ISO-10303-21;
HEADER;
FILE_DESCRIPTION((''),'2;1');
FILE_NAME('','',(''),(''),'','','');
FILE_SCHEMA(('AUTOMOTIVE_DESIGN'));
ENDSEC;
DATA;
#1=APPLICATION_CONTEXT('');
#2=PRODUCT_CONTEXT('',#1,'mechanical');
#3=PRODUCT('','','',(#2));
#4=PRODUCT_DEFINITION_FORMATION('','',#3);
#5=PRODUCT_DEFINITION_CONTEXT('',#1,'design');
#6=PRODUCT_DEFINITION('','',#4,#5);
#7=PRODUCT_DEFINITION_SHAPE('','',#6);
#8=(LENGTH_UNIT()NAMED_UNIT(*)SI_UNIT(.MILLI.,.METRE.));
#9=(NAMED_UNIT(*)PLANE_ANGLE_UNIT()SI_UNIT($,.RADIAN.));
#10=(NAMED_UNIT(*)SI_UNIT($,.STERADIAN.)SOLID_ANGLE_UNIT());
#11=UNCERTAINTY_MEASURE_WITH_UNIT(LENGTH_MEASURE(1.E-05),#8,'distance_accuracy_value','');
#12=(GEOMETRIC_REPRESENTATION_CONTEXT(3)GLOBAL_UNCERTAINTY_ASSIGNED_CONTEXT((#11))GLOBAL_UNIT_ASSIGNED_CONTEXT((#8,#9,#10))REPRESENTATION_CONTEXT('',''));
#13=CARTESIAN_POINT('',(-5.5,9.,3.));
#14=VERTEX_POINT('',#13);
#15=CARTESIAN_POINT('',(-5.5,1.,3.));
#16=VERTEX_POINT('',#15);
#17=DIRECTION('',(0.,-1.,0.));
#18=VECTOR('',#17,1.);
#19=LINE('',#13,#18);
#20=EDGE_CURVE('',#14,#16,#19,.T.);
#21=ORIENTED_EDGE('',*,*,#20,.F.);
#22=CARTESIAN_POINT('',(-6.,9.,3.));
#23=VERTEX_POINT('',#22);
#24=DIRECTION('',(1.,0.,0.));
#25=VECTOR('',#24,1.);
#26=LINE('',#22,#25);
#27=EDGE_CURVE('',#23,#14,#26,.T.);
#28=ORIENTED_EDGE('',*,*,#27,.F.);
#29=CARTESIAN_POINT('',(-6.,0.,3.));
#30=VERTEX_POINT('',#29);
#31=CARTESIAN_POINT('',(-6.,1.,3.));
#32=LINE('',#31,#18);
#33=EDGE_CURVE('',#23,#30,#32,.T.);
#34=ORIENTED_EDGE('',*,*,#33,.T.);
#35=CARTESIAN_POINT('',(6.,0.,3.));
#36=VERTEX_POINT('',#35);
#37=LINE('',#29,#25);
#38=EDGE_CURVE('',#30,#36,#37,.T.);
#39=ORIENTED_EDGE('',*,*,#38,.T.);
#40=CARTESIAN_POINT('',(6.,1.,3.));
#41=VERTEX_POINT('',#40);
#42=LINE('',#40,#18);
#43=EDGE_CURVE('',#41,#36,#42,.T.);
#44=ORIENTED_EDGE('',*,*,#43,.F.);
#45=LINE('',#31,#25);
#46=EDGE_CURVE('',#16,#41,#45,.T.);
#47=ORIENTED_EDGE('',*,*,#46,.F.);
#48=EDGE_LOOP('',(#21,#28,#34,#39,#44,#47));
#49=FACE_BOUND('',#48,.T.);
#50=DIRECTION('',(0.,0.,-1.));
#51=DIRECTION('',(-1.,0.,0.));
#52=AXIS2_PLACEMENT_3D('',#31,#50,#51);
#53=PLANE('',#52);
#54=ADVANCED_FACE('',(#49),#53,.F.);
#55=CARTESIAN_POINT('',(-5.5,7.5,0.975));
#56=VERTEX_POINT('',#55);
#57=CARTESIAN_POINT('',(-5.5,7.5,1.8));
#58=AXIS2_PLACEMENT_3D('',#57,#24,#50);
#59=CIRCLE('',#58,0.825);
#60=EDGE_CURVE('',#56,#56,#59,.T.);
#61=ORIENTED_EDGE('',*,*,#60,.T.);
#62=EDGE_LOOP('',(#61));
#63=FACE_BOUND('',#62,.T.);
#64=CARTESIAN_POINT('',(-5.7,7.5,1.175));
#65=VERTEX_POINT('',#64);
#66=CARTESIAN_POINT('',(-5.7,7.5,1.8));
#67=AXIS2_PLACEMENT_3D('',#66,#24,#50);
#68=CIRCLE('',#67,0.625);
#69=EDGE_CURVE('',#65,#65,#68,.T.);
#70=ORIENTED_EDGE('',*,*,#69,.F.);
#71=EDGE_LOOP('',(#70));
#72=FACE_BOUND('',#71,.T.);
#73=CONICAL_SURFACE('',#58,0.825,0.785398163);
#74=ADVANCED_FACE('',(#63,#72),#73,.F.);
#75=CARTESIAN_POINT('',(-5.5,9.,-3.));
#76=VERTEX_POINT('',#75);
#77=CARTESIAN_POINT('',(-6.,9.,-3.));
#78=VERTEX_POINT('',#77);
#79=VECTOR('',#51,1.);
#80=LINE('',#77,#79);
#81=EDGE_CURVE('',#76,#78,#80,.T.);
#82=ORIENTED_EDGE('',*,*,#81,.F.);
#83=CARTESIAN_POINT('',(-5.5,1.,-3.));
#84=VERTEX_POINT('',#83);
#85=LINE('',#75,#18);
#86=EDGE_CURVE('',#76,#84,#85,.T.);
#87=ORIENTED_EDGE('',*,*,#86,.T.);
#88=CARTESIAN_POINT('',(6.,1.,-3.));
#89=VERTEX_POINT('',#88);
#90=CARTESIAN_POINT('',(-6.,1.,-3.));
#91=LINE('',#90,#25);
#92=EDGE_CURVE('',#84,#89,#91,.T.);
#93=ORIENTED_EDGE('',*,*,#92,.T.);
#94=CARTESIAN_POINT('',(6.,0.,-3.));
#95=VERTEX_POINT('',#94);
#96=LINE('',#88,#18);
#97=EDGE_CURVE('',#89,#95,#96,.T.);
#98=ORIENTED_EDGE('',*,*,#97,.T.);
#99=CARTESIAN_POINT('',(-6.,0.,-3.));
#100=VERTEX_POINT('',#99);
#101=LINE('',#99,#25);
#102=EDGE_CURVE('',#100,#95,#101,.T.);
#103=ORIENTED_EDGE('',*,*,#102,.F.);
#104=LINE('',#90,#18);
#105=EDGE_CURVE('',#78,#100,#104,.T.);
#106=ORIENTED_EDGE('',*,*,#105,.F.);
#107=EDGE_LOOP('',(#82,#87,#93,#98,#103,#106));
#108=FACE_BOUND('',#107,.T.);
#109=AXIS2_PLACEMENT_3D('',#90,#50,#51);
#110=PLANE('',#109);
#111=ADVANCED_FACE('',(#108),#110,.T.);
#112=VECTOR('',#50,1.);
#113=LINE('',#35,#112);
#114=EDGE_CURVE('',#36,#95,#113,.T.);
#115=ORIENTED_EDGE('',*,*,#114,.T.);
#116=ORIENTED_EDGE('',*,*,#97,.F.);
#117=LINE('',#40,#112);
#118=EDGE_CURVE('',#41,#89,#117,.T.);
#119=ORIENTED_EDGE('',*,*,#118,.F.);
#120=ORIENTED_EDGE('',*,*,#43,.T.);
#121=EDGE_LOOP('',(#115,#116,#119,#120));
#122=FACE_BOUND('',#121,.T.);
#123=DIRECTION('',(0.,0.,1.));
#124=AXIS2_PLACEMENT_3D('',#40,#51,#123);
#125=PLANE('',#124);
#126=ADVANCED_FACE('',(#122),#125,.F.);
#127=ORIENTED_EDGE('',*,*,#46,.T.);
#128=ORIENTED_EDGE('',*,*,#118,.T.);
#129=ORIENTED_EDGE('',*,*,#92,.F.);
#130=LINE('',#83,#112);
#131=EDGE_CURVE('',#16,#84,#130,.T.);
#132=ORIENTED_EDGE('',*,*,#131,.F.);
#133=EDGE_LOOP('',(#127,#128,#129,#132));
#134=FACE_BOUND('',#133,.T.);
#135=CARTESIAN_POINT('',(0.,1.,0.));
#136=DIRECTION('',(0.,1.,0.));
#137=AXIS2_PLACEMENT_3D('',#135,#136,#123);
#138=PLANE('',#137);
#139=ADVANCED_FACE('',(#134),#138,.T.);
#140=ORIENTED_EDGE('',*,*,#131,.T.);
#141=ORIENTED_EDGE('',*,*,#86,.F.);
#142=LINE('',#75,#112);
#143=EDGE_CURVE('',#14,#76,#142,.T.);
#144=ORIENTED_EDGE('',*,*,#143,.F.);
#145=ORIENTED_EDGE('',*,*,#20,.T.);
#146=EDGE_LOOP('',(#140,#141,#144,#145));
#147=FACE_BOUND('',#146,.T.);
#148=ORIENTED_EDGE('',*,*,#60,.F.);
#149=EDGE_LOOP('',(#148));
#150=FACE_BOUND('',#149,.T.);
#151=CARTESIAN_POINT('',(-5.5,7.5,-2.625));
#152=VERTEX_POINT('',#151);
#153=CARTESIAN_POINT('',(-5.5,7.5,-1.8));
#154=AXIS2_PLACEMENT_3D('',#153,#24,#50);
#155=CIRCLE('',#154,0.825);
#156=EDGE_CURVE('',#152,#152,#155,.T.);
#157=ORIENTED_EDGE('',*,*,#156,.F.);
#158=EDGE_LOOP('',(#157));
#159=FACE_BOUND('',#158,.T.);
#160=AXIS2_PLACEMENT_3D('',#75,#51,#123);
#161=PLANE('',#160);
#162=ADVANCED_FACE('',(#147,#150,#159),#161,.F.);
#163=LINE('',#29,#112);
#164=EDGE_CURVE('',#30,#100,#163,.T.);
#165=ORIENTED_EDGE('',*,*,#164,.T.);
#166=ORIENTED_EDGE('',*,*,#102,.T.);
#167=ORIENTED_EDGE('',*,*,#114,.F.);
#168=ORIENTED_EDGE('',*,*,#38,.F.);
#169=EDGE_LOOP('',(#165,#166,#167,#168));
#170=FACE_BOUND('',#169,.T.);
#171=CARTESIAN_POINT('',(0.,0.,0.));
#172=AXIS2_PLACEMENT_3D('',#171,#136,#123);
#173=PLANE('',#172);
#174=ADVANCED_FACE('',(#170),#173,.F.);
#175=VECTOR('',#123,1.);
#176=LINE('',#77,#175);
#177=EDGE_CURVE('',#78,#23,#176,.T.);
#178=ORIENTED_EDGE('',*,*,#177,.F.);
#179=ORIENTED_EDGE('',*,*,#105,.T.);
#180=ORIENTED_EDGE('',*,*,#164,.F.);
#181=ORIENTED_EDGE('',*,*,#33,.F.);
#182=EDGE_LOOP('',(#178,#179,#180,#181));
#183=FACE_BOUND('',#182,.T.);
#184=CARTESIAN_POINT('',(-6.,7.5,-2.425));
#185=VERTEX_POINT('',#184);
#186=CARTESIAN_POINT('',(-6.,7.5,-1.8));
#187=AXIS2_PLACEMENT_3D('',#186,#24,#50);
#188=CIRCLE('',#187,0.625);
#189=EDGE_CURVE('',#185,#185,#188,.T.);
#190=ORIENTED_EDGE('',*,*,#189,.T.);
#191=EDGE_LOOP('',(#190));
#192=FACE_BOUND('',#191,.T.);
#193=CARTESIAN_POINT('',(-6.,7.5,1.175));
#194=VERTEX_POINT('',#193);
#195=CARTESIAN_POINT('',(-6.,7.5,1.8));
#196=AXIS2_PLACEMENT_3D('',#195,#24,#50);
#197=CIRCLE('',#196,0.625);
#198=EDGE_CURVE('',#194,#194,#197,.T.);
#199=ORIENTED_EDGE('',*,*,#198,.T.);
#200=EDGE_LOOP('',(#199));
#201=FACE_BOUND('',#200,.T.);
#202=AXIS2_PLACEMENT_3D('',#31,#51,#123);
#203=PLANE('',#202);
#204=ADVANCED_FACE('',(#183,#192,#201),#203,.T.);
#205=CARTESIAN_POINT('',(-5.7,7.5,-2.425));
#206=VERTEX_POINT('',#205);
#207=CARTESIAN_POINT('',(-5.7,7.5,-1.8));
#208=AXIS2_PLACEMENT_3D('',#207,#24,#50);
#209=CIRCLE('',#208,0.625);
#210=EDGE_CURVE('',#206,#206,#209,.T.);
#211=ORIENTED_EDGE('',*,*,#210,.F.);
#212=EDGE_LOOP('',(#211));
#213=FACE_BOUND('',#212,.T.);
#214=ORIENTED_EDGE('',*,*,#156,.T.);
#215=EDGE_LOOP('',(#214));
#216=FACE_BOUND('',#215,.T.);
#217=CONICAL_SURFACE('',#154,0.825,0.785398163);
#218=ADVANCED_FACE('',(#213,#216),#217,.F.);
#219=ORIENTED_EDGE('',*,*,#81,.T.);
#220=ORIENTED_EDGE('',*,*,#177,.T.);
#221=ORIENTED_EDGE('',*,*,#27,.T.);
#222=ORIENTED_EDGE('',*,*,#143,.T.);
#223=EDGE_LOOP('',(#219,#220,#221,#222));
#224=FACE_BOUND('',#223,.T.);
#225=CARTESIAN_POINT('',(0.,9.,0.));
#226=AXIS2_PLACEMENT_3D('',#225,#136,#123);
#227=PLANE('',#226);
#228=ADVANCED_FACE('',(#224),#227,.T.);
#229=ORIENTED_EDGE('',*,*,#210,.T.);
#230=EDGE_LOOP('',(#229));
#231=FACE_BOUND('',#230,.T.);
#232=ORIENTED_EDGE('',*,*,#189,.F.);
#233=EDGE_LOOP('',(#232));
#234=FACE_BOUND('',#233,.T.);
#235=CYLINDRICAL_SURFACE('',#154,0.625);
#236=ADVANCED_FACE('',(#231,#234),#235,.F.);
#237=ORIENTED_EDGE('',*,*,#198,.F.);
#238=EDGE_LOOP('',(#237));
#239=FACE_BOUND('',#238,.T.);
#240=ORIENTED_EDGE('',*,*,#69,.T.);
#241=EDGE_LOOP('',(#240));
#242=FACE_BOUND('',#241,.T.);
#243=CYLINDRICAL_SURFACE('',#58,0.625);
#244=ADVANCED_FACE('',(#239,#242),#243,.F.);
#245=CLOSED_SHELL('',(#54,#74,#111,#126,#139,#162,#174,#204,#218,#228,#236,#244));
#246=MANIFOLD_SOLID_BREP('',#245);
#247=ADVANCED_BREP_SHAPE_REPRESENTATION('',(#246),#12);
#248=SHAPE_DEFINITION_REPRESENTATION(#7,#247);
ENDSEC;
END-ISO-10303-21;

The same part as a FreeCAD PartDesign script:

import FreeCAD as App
import Part
import Sketcher
Q = App.Units.Quantity


def add_polygon(sketch, points):
    """Adds a closed chain of lines whose ends are joined by coincident constraints."""
    first, n = sketch.GeometryCount, len(points)
    for a, b in zip(points, points[1:] + points[:1]):
        sketch.addGeometry(Part.LineSegment(App.Vector(*a, 0), App.Vector(*b, 0)), False)
    for i in range(n):
        sketch.addConstraint(Sketcher.Constraint("Coincident", first + i, 2, first + (i + 1) % n, 1))

doc = App.newDocument("Part")
params = doc.addObject("Spreadsheet::Sheet", "Params")
for row, (alias, value) in enumerate([
    ("sketch1_width", "12 mm"),
    ("sketch1_height", "6 mm"),
    ("pad1_length", "1 mm"),
    ("sketch2_height", "6 mm"),
    ("sketch2_width", "0.5 mm"),
    ("pad2_length", "8 mm"),
    ("sketch3_width", "0.5 mm"),
    ("sketch3_width2", "0.3 mm"),
    ("groove_angle", "360 deg"),
    ("linearpattern_pitch", "3.6 mm"),
], start=1):
    params.set(f"A{row}", alias)
    params.set(f"B{row}", "=" + value)
    params.setAlias(f"B{row}", alias)

body = doc.addObject("PartDesign::Body", "Body")

# Sketch on XZ plane
sketch1 = doc.addObject("Sketcher::SketchObject", "Sketch")
body.addObject(sketch1)
sketch1.AttachmentSupport = (doc.XZ_Plane, [""])
sketch1.MapMode = "FlatFace"
add_polygon(sketch1, [(-6, -3), (-6, 3), (6, 3), (6, -3)])  # lines 0-3
sketch1.addConstraint([
    Sketcher.Constraint("Vertical", 0),
    Sketcher.Constraint("Horizontal", 1),
    Sketcher.Constraint("Vertical", 2),
    Sketcher.Constraint("Horizontal", 3),
    Sketcher.Constraint("Symmetric", 0, 2, 2, 2, -1, 1),
    Sketcher.Constraint("DistanceX", 1, 1, 1, 2, 12.0),
    Sketcher.Constraint("DistanceY", 0, 1, 0, 2, 6.0),
])
sketch1.setExpression("Constraints[9]", "Params.sketch1_width")
sketch1.setExpression("Constraints[10]", "Params.sketch1_height")
pad1 = doc.addObject("PartDesign::Pad", "Pad")
body.addObject(pad1)
pad1.Profile = sketch1
pad1.setExpression("Length", "Params.pad1_length")
pad1.Reversed = True

# Sketch on XZ plane
sketch2 = doc.addObject("Sketcher::SketchObject", "Sketch001")
body.addObject(sketch2)
sketch2.AttachmentSupport = (doc.XZ_Plane, [""])
sketch2.MapMode = "FlatFace"
sketch2.AttachmentOffset = App.Placement(App.Vector(0, 0, -1), App.Rotation())
add_polygon(sketch2, [(-6, -3), (-6, 3), (-5.5, 3), (-5.5, -3)])  # lines 0-3
sketch2.addConstraint([
    Sketcher.Constraint("Vertical", 0),
    Sketcher.Constraint("Horizontal", 1),
    Sketcher.Constraint("Vertical", 2),
    Sketcher.Constraint("Horizontal", 3),
    Sketcher.Constraint("DistanceY", 0, 1, 0, 2, 6.0),
    Sketcher.Constraint("DistanceX", 1, 1, 1, 2, 0.5),
    Sketcher.Constraint("DistanceX", 0, 2, -1, 1, 6.0),
    Sketcher.Constraint("DistanceY", -1, 1, 0, 2, 3.0),
])
sketch2.setExpression("Constraints[8]", "Params.sketch2_height")
sketch2.setExpression("Constraints[9]", "Params.sketch2_width")
pad2 = doc.addObject("PartDesign::Pad", "Pad001")
body.addObject(pad2)
pad2.Profile = sketch2
pad2.setExpression("Length", "Params.pad2_length")
pad2.Reversed = True

# Sketch on XZ plane
sketch3 = doc.addObject("Sketcher::SketchObject", "Sketch002")
body.addObject(sketch3)
sketch3.AttachmentSupport = (doc.XZ_Plane, [""])
sketch3.MapMode = "FlatFace"
sketch3.AttachmentOffset = App.Placement(App.Vector(0, 0, -7.5), App.Rotation())
add_polygon(sketch3, [(-6, -1.8), (-5.5, -1.8), (-5.5, -2.625), (-5.7, -2.425), (-6, -2.425)])  # lines 0-4
sketch3.addGeometry(Part.LineSegment(App.Vector(-5.5, -1.8, 0), App.Vector(-6, -1.8, 0)), True)  # axis
sketch3.addConstraint([
    Sketcher.Constraint("Horizontal", 0),
    Sketcher.Constraint("Vertical", 1),
    Sketcher.Constraint("Horizontal", 3),
    Sketcher.Constraint("Vertical", 4),
    Sketcher.Constraint("Horizontal", 5),
    Sketcher.Constraint("Coincident", 5, 1, 0, 2),
    Sketcher.Constraint("Vertical", 3, 2, 5, 2),
    Sketcher.Constraint("Angle", 2, Q("135 deg")),
    Sketcher.Constraint("DistanceX", 0, 1, 0, 2, 0.5),
    Sketcher.Constraint("DistanceX", 3, 2, 3, 1, 0.3),
    Sketcher.Constraint("DistanceX", 3, 2, -1, 1, 6.0),
    Sketcher.Constraint("DistanceY", 0, 2, -1, 1, 1.8),
    Sketcher.Constraint("DistanceY", 1, 2, 1, 1, 0.825),
])
sketch3.setExpression("Constraints[13]", "Params.sketch3_width")
sketch3.setExpression("Constraints[14]", "Params.sketch3_width2")
groove = doc.addObject("PartDesign::Groove", "Groove")
body.addObject(groove)
groove.Profile = sketch3
groove.ReferenceAxis = (sketch3, ["Axis0"])
groove.setExpression("Angle", "Params.groove_angle")
doc.recompute()

linearpattern = doc.addObject("PartDesign::LinearPattern", "LinearPattern")
body.addObject(linearpattern)
linearpattern.Originals = [groove]
linearpattern.Direction = (doc.Z_Axis, [""])
linearpattern.Mode = "offset"
linearpattern.setExpression("Offset", "Params.linearpattern_pitch")
linearpattern.Occurrences = 2
body.Tip = linearpattern

doc.recompute()
